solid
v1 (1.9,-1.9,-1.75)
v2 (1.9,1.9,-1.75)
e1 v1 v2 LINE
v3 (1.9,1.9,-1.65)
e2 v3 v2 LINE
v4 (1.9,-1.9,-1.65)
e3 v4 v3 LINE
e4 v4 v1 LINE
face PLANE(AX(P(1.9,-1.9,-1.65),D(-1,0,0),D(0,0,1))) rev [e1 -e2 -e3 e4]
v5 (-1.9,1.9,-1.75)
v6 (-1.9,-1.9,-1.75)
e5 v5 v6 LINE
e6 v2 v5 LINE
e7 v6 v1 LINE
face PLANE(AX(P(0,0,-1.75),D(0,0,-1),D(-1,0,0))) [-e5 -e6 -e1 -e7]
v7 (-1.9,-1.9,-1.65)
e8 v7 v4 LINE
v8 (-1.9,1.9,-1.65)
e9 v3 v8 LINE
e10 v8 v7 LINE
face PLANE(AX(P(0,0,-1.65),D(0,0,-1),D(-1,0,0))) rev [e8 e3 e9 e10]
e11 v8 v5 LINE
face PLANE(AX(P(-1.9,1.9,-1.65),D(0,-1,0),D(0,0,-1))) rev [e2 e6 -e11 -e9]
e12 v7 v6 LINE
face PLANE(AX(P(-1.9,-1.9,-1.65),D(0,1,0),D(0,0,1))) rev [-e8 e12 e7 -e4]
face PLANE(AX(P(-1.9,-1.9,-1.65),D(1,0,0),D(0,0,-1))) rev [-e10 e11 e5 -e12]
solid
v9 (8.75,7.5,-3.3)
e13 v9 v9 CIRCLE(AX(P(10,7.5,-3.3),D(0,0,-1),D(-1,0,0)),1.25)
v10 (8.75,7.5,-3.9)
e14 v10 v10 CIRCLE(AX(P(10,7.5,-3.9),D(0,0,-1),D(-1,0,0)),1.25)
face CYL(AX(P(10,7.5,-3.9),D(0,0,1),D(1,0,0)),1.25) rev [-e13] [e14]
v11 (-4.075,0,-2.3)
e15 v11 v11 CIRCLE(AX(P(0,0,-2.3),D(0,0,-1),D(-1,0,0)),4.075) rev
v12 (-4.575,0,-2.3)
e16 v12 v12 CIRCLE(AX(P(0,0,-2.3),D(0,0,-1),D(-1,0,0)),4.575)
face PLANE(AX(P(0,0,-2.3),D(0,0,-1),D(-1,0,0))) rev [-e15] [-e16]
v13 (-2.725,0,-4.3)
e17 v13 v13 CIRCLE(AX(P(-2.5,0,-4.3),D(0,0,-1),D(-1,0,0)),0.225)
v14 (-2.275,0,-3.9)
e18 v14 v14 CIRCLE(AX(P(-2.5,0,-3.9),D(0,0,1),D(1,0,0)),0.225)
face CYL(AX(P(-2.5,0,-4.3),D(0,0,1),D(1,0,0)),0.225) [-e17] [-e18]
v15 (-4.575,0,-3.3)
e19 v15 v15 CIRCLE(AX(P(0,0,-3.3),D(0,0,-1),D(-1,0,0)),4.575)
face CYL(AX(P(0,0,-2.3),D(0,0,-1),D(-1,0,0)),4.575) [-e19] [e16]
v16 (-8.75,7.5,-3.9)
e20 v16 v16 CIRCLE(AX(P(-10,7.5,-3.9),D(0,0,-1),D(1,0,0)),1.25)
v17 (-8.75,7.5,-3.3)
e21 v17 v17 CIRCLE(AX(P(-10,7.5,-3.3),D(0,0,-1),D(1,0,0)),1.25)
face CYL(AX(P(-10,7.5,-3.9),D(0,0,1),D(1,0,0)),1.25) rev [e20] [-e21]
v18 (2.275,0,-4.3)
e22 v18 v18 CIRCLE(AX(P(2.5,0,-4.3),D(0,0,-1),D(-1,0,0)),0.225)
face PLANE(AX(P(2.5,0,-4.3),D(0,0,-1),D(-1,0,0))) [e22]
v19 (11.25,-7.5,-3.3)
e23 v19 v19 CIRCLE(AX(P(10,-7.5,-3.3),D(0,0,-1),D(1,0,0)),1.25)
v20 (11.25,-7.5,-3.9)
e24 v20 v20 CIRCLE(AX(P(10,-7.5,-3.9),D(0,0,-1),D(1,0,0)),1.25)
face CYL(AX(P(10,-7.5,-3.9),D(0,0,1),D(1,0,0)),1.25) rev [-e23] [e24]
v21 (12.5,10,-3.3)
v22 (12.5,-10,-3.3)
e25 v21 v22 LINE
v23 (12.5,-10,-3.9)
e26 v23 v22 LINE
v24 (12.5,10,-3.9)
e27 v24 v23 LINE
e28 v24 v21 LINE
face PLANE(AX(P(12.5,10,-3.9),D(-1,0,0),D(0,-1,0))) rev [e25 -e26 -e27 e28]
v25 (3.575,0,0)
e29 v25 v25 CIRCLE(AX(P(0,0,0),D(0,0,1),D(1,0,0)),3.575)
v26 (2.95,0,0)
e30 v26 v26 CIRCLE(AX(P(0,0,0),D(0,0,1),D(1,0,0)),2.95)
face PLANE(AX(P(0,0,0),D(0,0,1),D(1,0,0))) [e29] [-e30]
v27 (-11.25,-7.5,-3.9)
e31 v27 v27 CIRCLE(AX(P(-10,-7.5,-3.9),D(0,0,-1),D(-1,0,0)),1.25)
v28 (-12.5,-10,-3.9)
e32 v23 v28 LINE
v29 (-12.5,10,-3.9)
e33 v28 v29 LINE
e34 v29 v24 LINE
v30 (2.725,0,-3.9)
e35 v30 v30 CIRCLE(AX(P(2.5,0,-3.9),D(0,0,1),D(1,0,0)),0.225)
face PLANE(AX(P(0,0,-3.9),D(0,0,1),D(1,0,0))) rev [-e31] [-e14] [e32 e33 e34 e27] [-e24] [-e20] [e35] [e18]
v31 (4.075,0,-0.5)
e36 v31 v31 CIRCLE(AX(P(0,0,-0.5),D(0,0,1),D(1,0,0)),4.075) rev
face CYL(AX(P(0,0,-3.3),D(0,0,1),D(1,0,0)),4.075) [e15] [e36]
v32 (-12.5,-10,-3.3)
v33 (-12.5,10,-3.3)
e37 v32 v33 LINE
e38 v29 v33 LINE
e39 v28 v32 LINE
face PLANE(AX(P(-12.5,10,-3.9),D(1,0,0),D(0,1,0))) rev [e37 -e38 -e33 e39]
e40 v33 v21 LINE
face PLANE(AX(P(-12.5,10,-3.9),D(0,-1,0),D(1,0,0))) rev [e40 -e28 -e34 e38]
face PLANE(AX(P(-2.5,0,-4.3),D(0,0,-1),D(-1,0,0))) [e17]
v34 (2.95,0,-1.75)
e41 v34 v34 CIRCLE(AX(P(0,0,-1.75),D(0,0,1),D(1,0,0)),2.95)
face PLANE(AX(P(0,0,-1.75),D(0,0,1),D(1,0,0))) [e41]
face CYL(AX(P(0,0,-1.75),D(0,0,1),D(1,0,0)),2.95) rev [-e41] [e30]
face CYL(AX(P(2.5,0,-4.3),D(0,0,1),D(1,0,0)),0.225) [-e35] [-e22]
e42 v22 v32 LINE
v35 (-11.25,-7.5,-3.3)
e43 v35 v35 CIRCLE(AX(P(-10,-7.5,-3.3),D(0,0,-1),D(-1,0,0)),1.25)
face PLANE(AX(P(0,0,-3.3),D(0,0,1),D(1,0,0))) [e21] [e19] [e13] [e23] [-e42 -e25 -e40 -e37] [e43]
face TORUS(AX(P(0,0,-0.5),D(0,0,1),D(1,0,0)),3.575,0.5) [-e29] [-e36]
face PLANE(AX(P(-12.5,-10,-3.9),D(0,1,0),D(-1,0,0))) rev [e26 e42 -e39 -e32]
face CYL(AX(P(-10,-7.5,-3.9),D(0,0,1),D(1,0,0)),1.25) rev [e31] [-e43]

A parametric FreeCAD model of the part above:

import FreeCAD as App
import Part
import Sketcher
from FreeCAD import Vector


def edges_at(feature, points):
    """Names of the edges that pass closest to the given points."""
    edges = feature.Shape.Edges
    near = lambda p: min(range(len(edges)), key=lambda i: edges[i].distToShape(Part.Vertex(*p))[0])
    return sorted({f"Edge{near(p) + 1}" for p in points})


def add_polygon(sketch, points):
    """Adds a closed chain of lines whose ends are joined by coincident constraints."""
    first, n = sketch.GeometryCount, len(points)
    for a, b in zip(points, points[1:] + points[:1]):
        sketch.addGeometry(Part.LineSegment(App.Vector(*a, 0), App.Vector(*b, 0)), False)
    for i in range(n):
        sketch.addConstraint(Sketcher.Constraint("Coincident", first + i, 2, first + (i + 1) % n, 1))

doc = App.newDocument("Part")
body = doc.addObject("PartDesign::Body", "Body")

# Sketch on XY plane
sketch1 = body.newObject("Sketcher::SketchObject", "Sketch")
sketch1.AttachmentSupport = (doc.getObject("XY_Plane"), [""])
sketch1.MapMode = "FlatFace"
sketch1.addGeometry(Part.Circle(Vector(0, 0, 0), Vector(0, 0, 1), 4.075), False)
sketch1.addConstraint(Sketcher.Constraint("Coincident", 0, 3, -1, 1))
sketch1.addConstraint(Sketcher.Constraint("Diameter", 0, 8.15))
pad1 = body.newObject("PartDesign::Pad", "Pad")
pad1.Profile = sketch1
pad1.Length = 3.3
pad1.Reversed = True

# Sketch on XY plane
sketch2 = body.newObject("Sketcher::SketchObject", "Sketch001")
sketch2.AttachmentSupport = (doc.getObject("XY_Plane"), [""])
sketch2.MapMode = "FlatFace"
sketch2.AttachmentOffset = App.Placement(Vector(0, 0, -3.3), App.Rotation())
sketch2.addGeometry(Part.Circle(Vector(0, 0, 0), Vector(0, 0, 1), 4.575), False)
sketch2.addConstraint(Sketcher.Constraint("Coincident", 0, 3, -1, 1))
sketch2.addConstraint(Sketcher.Constraint("Diameter", 0, 9.15))
pad2 = body.newObject("PartDesign::Pad", "Pad001")
pad2.Profile = sketch2
pad2.Length = 1

# Sketch on XY plane
sketch3 = body.newObject("Sketcher::SketchObject", "Sketch002")
sketch3.AttachmentSupport = (doc.getObject("XY_Plane"), [""])
sketch3.MapMode = "FlatFace"
sketch3.addGeometry(Part.Circle(Vector(0, 0, 0), Vector(0, 0, 1), 2.95), False)
sketch3.addConstraint(Sketcher.Constraint("Coincident", 0, 3, -1, 1))
sketch3.addConstraint(Sketcher.Constraint("Diameter", 0, 5.9))
pocket1 = body.newObject("PartDesign::Pocket", "Pocket")
pocket1.Profile = sketch3
pocket1.Length = 1.75
doc.recompute()

fillet = body.newObject("PartDesign::Fillet", "Fillet")
fillet.Base = (pocket1, edges_at(pocket1, [(-4.075, 0, 0)]))
fillet.Radius = 0.5

# Sketch on XY plane
sketch4 = body.newObject("Sketcher::SketchObject", "Sketch003")
sketch4.AttachmentSupport = (doc.getObject("XY_Plane"), [""])
sketch4.MapMode = "FlatFace"
sketch4.AttachmentOffset = App.Placement(Vector(0, 0, -3.3), App.Rotation())
sketch4.addGeometry(Part.Circle(Vector(-2.5, 0, 0), Vector(0, 0, 1), 0.225), False)
sketch4.addGeometry(Part.Circle(Vector(2.5, 0, 0), Vector(0, 0, 1), 0.225), False)
sketch4.addConstraint(Sketcher.Constraint("Equal", 0, 1))
sketch4.addConstraint(Sketcher.Constraint("Symmetric", 0, 3, 1, 3, -1, 1))
sketch4.addConstraint(Sketcher.Constraint("PointOnObject", 0, 3, -1))
sketch4.addConstraint(Sketcher.Constraint("Diameter", 0, 0.45))
sketch4.addConstraint(Sketcher.Constraint("DistanceX", 0, 3, 1, 3, 5.0))
pad3 = body.newObject("PartDesign::Pad", "Pad002")
pad3.Profile = sketch4
pad3.Length = 1
pad3.Reversed = True

# Sketch on XY plane
sketch5 = body.newObject("Sketcher::SketchObject", "Sketch004")
sketch5.AttachmentSupport = (doc.getObject("XY_Plane"), [""])
sketch5.MapMode = "FlatFace"
sketch5.AttachmentOffset = App.Placement(Vector(0, 0, -3.3), App.Rotation())
add_polygon(sketch5, [(12.5, 10), (12.5, -10), (-12.5, -10), (-12.5, 10)])  # lines 0-3
sketch5.addGeometry(Part.Circle(Vector(10, -7.5, 0), Vector(0, 0, 1), 1.25), False)  # 4
sketch5.addGeometry(Part.Circle(Vector(-10, -7.5, 0), Vector(0, 0, 1), 1.25), False)  # 5
sketch5.addGeometry(Part.Circle(Vector(10, 7.5, 0), Vector(0, 0, 1), 1.25), False)  # 6
sketch5.addGeometry(Part.Circle(Vector(-10, 7.5, 0), Vector(0, 0, 1), 1.25), False)  # 7
sketch5.addConstraint(Sketcher.Constraint("Vertical", 0))
sketch5.addConstraint(Sketcher.Constraint("Horizontal", 1))
sketch5.addConstraint(Sketcher.Constraint("Vertical", 2))
sketch5.addConstraint(Sketcher.Constraint("Horizontal", 3))
sketch5.addConstraint(Sketcher.Constraint("Equal", 4, 5))
sketch5.addConstraint(Sketcher.Constraint("Equal", 5, 6))
sketch5.addConstraint(Sketcher.Constraint("Equal", 6, 7))
sketch5.addConstraint(Sketcher.Constraint("Symmetric", 5, 3, 6, 3, -1, 1))
sketch5.addConstraint(Sketcher.Constraint("Symmetric", 4, 3, 7, 3, -1, 1))
sketch5.addConstraint(Sketcher.Constraint("Symmetric", 0, 2, 2, 2, -1, 1))
sketch5.addConstraint(Sketcher.Constraint("Symmetric", 4, 3, 5, 3, -2))
sketch5.addConstraint(Sketcher.Constraint("Diameter", 4, 2.5))
sketch5.addConstraint(Sketcher.Constraint("DistanceX", 1, 2, 1, 1, 25.0))
sketch5.addConstraint(Sketcher.Constraint("DistanceY", 0, 2, 0, 1, 20.0))
sketch5.addConstraint(Sketcher.Constraint("DistanceX", -1, 1, 4, 3, 10.0))
sketch5.addConstraint(Sketcher.Constraint("DistanceY", 4, 3, 6, 3, 15.0))
pad4 = body.newObject("PartDesign::Pad", "Pad003")
pad4.Profile = sketch5
pad4.Length = 0.6
pad4.Reversed = True
body2 = doc.addObject("PartDesign::Body", "Body001")

# Sketch on XY plane
sketch6 = body2.newObject("Sketcher::SketchObject", "Sketch005")
sketch6.AttachmentSupport = (doc.getObject("XY_Plane001"), [""])
sketch6.MapMode = "FlatFace"
sketch6.AttachmentOffset = App.Placement(Vector(0, 0, -1.75), App.Rotation())
add_polygon(sketch6, [(-1.9, 1.9), (-1.9, -1.9), (1.9, -1.9), (1.9, 1.9)])  # lines 0-3
sketch6.addConstraint(Sketcher.Constraint("Vertical", 0))
sketch6.addConstraint(Sketcher.Constraint("Horizontal", 1))
sketch6.addConstraint(Sketcher.Constraint("Vertical", 2))
sketch6.addConstraint(Sketcher.Constraint("Horizontal", 3))
sketch6.addConstraint(Sketcher.Constraint("Symmetric", 0, 2, 2, 2, -1, 1))
sketch6.addConstraint(Sketcher.Constraint("Equal", 3, 0))
sketch6.addConstraint(Sketcher.Constraint("DistanceX", 1, 1, 1, 2, 3.8))
pad5 = body2.newObject("PartDesign::Pad", "Pad004")
pad5.Profile = sketch6
pad5.Length = 0.1

doc.recompute()
